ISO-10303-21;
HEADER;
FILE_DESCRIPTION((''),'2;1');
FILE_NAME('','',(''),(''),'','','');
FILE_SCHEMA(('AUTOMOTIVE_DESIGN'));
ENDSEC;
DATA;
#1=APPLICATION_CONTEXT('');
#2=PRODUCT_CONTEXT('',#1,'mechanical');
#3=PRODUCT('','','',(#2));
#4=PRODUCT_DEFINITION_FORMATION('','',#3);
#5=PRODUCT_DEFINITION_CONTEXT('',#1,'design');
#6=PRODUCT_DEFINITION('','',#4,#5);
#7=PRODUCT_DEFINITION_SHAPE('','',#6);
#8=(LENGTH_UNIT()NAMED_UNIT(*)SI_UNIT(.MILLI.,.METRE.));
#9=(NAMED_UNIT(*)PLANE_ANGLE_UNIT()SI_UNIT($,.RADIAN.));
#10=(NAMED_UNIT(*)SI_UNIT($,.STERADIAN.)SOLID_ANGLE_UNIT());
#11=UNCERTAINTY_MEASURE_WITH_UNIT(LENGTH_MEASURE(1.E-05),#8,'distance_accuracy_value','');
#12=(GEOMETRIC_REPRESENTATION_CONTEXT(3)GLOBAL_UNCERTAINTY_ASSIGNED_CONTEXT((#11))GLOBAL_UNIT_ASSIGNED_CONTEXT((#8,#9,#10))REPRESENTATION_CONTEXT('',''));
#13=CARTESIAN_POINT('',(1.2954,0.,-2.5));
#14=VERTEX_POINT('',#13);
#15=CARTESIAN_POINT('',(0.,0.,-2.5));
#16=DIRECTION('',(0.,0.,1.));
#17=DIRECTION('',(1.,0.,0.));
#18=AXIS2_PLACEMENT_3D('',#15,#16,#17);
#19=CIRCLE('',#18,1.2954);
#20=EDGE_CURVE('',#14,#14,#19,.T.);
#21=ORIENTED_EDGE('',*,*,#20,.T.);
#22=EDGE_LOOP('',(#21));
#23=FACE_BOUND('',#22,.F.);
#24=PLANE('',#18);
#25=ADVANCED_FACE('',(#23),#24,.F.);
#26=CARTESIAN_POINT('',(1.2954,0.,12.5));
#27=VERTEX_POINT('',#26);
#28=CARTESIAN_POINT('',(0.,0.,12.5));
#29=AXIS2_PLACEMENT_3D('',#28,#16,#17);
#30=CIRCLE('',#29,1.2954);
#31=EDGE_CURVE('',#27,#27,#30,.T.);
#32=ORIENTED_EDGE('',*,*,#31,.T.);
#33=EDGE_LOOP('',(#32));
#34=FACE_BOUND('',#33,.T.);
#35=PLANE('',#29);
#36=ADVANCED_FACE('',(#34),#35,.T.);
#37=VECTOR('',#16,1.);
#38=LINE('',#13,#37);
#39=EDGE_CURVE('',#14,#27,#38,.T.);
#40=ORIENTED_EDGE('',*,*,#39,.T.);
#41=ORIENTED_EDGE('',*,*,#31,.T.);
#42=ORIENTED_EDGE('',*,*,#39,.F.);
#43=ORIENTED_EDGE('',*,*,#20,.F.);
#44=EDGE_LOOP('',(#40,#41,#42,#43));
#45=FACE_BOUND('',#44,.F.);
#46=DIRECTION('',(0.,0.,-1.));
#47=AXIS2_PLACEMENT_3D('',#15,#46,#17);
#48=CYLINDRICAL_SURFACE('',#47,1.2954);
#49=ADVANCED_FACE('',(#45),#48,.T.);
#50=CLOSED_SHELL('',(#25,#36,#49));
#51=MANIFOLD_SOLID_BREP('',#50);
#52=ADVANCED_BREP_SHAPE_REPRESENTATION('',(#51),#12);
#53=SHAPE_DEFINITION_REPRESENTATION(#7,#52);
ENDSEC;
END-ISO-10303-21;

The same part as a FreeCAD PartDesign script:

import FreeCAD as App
import Part
import Sketcher

doc = App.newDocument("Part")
body = doc.addObject("PartDesign::Body", "Body")

# Sketch on XY plane
sketch1 = body.newObject("Sketcher::SketchObject", "Sketch")
sketch1.AttachmentSupport = (doc.getObject("XY_Plane"), [""])
sketch1.MapMode = "FlatFace"
sketch1.AttachmentOffset = App.Placement(App.Vector(0, 0, -2.5), App.Rotation())
sketch1.addGeometry(Part.Circle(App.Vector(0, 0, 0), App.Vector(0, 0, 1), 1.3), False)
sketch1.addConstraint([
    Sketcher.Constraint("Coincident", 0, 3, -1, 1),
    Sketcher.Constraint("Diameter", 0, 2.5908),
])
pad1 = body.newObject("PartDesign::Pad", "Pad")
pad1.Profile = sketch1
pad1.Length = 15

doc.recompute()
